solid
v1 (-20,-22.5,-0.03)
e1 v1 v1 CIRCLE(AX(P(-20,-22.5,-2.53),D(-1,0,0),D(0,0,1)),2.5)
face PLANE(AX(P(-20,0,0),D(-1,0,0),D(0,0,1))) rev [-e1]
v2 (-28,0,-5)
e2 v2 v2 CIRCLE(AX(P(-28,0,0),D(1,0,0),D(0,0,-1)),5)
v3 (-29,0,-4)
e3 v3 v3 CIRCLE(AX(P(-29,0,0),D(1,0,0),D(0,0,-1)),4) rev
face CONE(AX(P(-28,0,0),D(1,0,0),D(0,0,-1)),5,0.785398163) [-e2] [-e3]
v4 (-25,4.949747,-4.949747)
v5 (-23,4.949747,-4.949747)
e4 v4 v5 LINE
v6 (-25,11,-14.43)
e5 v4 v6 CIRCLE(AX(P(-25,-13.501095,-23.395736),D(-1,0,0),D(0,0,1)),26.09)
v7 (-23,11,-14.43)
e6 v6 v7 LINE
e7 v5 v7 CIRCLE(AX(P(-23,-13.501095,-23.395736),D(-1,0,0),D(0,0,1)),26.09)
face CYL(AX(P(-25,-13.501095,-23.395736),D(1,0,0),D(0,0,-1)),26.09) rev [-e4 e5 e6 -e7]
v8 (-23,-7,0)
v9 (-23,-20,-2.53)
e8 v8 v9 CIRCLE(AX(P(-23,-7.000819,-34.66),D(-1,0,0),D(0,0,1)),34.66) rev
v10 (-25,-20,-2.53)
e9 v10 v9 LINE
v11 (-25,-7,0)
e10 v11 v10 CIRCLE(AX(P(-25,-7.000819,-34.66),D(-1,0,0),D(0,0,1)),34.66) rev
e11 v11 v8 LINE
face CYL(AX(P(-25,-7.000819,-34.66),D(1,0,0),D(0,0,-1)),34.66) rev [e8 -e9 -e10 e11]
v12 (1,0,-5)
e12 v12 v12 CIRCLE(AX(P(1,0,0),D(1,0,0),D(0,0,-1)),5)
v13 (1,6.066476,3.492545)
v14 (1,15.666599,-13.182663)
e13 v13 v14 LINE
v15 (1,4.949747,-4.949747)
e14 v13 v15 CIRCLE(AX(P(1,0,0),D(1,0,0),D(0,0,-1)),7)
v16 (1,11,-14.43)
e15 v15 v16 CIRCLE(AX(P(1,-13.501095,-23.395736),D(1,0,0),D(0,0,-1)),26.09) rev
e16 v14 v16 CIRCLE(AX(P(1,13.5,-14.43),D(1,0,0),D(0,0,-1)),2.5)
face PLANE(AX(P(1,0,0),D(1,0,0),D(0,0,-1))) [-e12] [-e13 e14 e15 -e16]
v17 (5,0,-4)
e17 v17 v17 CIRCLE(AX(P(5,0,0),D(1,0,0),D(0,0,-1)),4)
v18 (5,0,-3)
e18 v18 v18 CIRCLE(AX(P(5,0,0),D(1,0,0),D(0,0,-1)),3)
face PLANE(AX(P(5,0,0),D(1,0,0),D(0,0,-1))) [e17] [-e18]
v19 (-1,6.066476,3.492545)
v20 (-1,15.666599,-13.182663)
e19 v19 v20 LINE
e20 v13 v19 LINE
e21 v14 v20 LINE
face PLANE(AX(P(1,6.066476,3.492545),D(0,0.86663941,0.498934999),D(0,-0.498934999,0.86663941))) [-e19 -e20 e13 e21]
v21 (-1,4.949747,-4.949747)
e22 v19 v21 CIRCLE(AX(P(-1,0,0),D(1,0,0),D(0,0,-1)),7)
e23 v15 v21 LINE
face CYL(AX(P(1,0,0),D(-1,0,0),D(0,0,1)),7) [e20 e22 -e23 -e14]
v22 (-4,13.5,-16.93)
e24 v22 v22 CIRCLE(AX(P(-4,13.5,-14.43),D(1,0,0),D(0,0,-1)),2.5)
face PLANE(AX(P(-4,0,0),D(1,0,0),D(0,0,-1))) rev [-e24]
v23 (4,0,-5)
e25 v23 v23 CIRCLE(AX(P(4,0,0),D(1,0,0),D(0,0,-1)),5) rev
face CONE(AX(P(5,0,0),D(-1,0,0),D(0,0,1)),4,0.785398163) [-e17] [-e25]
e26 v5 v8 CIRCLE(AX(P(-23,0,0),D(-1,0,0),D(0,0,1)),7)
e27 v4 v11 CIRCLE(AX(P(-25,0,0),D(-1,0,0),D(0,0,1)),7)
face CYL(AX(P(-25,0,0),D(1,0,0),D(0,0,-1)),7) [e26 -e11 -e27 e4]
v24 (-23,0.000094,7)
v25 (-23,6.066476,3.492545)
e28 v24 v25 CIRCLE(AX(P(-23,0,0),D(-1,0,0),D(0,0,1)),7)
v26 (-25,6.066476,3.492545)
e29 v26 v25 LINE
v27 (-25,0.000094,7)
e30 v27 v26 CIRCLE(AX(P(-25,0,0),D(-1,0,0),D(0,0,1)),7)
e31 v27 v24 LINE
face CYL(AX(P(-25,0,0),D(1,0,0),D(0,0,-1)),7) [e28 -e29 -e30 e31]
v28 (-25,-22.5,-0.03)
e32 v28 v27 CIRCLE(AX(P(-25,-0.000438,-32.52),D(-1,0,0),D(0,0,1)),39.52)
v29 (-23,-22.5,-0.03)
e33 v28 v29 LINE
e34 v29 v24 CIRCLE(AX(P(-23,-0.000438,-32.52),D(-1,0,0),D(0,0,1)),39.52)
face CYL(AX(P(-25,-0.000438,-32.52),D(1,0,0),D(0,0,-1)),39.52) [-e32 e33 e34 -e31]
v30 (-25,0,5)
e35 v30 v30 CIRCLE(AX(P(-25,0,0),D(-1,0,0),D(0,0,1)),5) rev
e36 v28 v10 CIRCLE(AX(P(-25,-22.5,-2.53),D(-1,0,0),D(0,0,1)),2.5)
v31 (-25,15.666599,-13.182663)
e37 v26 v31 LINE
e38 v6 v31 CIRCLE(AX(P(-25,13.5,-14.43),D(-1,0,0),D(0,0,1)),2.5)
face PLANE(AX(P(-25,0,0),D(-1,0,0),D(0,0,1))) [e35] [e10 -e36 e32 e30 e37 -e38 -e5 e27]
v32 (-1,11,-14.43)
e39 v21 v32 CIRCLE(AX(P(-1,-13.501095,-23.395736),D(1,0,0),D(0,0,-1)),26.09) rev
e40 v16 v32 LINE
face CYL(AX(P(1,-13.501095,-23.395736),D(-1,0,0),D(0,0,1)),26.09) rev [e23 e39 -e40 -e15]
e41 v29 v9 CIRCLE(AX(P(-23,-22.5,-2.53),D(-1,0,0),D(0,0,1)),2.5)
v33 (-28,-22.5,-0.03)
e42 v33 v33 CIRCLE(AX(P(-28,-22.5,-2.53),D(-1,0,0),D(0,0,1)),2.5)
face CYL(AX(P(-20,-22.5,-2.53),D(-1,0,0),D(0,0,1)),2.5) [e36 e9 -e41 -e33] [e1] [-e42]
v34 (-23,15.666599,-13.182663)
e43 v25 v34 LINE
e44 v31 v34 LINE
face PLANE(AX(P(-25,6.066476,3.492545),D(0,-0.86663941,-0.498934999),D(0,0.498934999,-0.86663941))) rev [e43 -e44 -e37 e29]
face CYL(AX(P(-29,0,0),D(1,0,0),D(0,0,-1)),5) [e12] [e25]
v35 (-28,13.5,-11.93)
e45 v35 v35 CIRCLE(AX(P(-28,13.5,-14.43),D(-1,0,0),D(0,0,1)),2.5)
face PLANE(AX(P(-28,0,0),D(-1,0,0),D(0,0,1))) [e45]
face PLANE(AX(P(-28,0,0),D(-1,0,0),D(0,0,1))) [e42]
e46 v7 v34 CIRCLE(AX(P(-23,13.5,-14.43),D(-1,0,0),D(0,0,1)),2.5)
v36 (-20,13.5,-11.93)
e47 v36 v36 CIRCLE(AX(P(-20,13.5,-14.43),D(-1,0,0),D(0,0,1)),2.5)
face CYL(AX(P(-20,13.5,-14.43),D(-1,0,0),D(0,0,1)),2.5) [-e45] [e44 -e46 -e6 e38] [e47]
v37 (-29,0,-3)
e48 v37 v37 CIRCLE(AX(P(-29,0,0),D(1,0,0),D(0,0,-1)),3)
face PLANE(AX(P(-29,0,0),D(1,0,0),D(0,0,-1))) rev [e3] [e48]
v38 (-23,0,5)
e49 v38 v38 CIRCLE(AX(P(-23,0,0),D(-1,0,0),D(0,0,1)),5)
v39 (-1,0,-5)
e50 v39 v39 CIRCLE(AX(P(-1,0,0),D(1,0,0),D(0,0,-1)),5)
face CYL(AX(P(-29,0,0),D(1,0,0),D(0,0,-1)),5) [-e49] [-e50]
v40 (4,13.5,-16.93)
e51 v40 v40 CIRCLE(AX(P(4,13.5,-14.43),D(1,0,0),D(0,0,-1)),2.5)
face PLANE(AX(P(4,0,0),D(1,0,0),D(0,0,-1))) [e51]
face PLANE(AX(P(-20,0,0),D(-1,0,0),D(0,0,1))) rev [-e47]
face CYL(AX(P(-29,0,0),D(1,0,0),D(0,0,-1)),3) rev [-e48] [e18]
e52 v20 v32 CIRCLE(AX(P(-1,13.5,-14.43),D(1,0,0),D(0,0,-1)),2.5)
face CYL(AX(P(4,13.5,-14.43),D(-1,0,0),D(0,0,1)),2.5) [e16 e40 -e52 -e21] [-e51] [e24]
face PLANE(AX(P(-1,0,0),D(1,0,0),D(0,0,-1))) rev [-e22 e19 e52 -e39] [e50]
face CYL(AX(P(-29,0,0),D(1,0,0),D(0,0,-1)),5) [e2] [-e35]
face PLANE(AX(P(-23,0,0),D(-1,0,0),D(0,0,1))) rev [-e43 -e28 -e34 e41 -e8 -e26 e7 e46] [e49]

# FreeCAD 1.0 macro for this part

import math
import FreeCAD as App
import Part
import Sketcher
Q = App.Units.Quantity


def edges_at(feature, points):
    """Names of the edges that pass closest to the given points."""
    edges = feature.Shape.Edges
    near = lambda p: min(range(len(edges)), key=lambda i: edges[i].distToShape(Part.Vertex(*p))[0])
    return sorted({f"Edge{near(p) + 1}" for p in points})

doc = App.newDocument("Part")
body = doc.addObject("PartDesign::Body", "Body")

sketch1 = doc.addObject("Sketcher::SketchObject", "Sketch")
body.addObject(sketch1)
sketch1.AttachmentSupport = (doc.YZ_Plane, [""])
sketch1.MapMode = "FlatFace"
sketch1.addGeometry(Part.Circle(App.Vector(13.5, -14.43, 0), App.Vector(0, 0, 1), 2.5), False)
sketch1.addConstraint(Sketcher.Constraint("Diameter", 0, Q("5 mm")))
sketch1.addConstraint(Sketcher.Constraint("DistanceX", -1, 1, 0, 3, Q("13.5 mm")))
sketch1.addConstraint(Sketcher.Constraint("DistanceY", 0, 3, -1, 1, Q("14.43 mm")))
pad1 = doc.addObject("PartDesign::Pad", "Pad")
body.addObject(pad1)
pad1.Profile = sketch1
pad1.Length = 8
pad1.Midplane = True

sketch2 = doc.addObject("Sketcher::SketchObject", "Sketch001")
body.addObject(sketch2)
sketch2.AttachmentSupport = (doc.YZ_Plane, [""])
sketch2.MapMode = "FlatFace"
sketch2.addGeometry(Part.LineSegment(App.Vector(15.666599, -13.182663, 0), App.Vector(6.066476, 3.492545, 0)), False)
sketch2.addGeometry(Part.ArcOfCircle(Part.Circle(App.Vector(0, 0, 0), App.Vector(0, 0, 1), 7), math.radians(29.929565), math.radians(315)), False)
sketch2.addGeometry(Part.ArcOfCircle(Part.Circle(App.Vector(-13.501095, -23.395736, 0), App.Vector(0, 0, 1), 26.09), math.radians(20.099193), math.radians(44.992462)), False)
sketch2.addGeometry(Part.ArcOfCircle(Part.Circle(App.Vector(13.5, -14.43, 0), App.Vector(0, 0, 1), 2.5), math.radians(29.929565), math.radians(180)), False)
sketch2.addGeometry(Part.Circle(App.Vector(0, 0, 0), App.Vector(0, 0, 1), 5), False)
sketch2.addConstraint(Sketcher.Constraint("Tangent", 0, 2, 1, 1))
sketch2.addConstraint(Sketcher.Constraint("Coincident", 1, 2, 2, 2))
sketch2.addConstraint(Sketcher.Constraint("Coincident", 2, 1, 3, 2))
sketch2.addConstraint(Sketcher.Constraint("Tangent", 3, 1, 0, 1))
sketch2.addConstraint(Sketcher.Constraint("Coincident", 1, 3, -1, 1))
sketch2.addConstraint(Sketcher.Constraint("Coincident", 4, 3, -1, 1))
sketch2.addConstraint(Sketcher.Constraint("Horizontal", 3, 3, 2, 1))
sketch2.addConstraint(Sketcher.Constraint("Diameter", 4, Q("10 mm")))
sketch2.addConstraint(Sketcher.Constraint("Radius", 1, Q("7 mm")))
sketch2.addConstraint(Sketcher.Constraint("Radius", 3, Q("2.5 mm")))
sketch2.addConstraint(Sketcher.Constraint("Radius", 2, Q("26.09 mm")))
sketch2.addConstraint(Sketcher.Constraint("DistanceX", -1, 1, 2, 1, Q("11 mm")))
sketch2.addConstraint(Sketcher.Constraint("DistanceY", 3, 3, -1, 1, Q("14.43 mm")))
sketch2.addConstraint(Sketcher.Constraint("DistanceX", 2, 3, 0, 2, Q("19.567571 mm")))
pad2 = doc.addObject("PartDesign::Pad", "Pad001")
body.addObject(pad2)
pad2.Profile = sketch2
pad2.Length = 2
pad2.Midplane = True

sketch3 = doc.addObject("Sketcher::SketchObject", "Sketch002")
body.addObject(sketch3)
sketch3.AttachmentSupport = (doc.YZ_Plane, [""])
sketch3.MapMode = "FlatFace"
sketch3.AttachmentOffset = App.Placement(App.Vector(0, 0, -1), App.Rotation())
sketch3.addGeometry(Part.Circle(App.Vector(0, 0, 0), App.Vector(0, 0, 1), 5), False)
sketch3.addGeometry(Part.Circle(App.Vector(0, 0, 0), App.Vector(0, 0, 1), 3), False)
sketch3.addConstraint(Sketcher.Constraint("Coincident", 0, 3, -1, 1))
sketch3.addConstraint(Sketcher.Constraint("Coincident", 1, 3, -1, 1))
sketch3.addConstraint(Sketcher.Constraint("Diameter", 0, Q("10 mm")))
sketch3.addConstraint(Sketcher.Constraint("Diameter", 1, Q("6 mm")))
pad3 = doc.addObject("PartDesign::Pad", "Pad002")
body.addObject(pad3)
pad3.Profile = sketch3
pad3.Type = "TwoLengths"
pad3.Length = 6
pad3.Length2 = 28

sketch4 = doc.addObject("Sketcher::SketchObject", "Sketch003")
body.addObject(sketch4)
sketch4.AttachmentSupport = (doc.YZ_Plane, [""])
sketch4.MapMode = "FlatFace"
sketch4.AttachmentOffset = App.Placement(App.Vector(0, 0, -23), App.Rotation())
sketch4.addGeometry(Part.ArcOfCircle(Part.Circle(App.Vector(0, 0, 0), App.Vector(0, 0, 1), 7), math.radians(29.929565), math.radians(89.999229)), False)
sketch4.addGeometry(Part.LineSegment(App.Vector(6.066476, 3.492545, 0), App.Vector(15.666599, -13.182663, 0)), False)
sketch4.addGeometry(Part.ArcOfCircle(Part.Circle(App.Vector(13.5, -14.43, 0), App.Vector(0, 0, 1), 2.5), math.radians(29.929565), math.radians(180)), False)
sketch4.addGeometry(Part.ArcOfCircle(Part.Circle(App.Vector(-13.501095, -23.395736, 0), App.Vector(0, 0, 1), 26.09), math.radians(20.099193), math.radians(44.992462)), False)
sketch4.addGeometry(Part.ArcOfCircle(Part.Circle(App.Vector(0, 0, 0), App.Vector(0, 0, 1), 7), math.radians(180), math.radians(315)), False)
sketch4.addGeometry(Part.ArcOfCircle(Part.Circle(App.Vector(-7.000819, -34.66, 0), App.Vector(0, 0, 1), 34.66), math.radians(89.998646), math.radians(112.02731)), False)
sketch4.addGeometry(Part.ArcOfCircle(Part.Circle(App.Vector(-22.5, -2.53, 0), App.Vector(0, 0, 1), 2.5), math.radians(0), math.radians(90)), False)
sketch4.addGeometry(Part.ArcOfCircle(Part.Circle(App.Vector(-0.000438, -32.52, 0), App.Vector(0, 0, 1), 39.52), math.radians(89.999229), math.radians(124.702884)), False)
sketch4.addGeometry(Part.Circle(App.Vector(0, 0, 0), App.Vector(0, 0, 1), 5), False)
sketch4.addConstraint(Sketcher.Constraint("Tangent", 0, 1, 1, 1))
sketch4.addConstraint(Sketcher.Constraint("Tangent", 1, 2, 2, 1))
sketch4.addConstraint(Sketcher.Constraint("Coincident", 2, 2, 3, 1))
sketch4.addConstraint(Sketcher.Constraint("Coincident", 3, 2, 4, 2))
sketch4.addConstraint(Sketcher.Constraint("Coincident", 4, 1, 5, 1))
sketch4.addConstraint(Sketcher.Constraint("Coincident", 5, 2, 6, 1))
sketch4.addConstraint(Sketcher.Constraint("Coincident", 6, 2, 7, 2))
sketch4.addConstraint(Sketcher.Constraint("Tangent", 7, 1, 0, 2))
sketch4.addConstraint(Sketcher.Constraint("Coincident", 0, 3, -1, 1))
sketch4.addConstraint(Sketcher.Constraint("Coincident", 4, 3, -1, 1))
sketch4.addConstraint(Sketcher.Constraint("Coincident", 8, 3, -1, 1))
sketch4.addConstraint(Sketcher.Constraint("Equal", 0, 4))
sketch4.addConstraint(Sketcher.Constraint("Equal", 2, 6))
sketch4.addConstraint(Sketcher.Constraint("PointOnObject", 4, 1, -1))
sketch4.addConstraint(Sketcher.Constraint("Horizontal", 6, 3, 5, 2))
sketch4.addConstraint(Sketcher.Constraint("Diameter", 8, Q("10 mm")))
sketch4.addConstraint(Sketcher.Constraint("Radius", 0, Q("7 mm")))
sketch4.addConstraint(Sketcher.Constraint("Radius", 2, Q("2.5 mm")))
sketch4.addConstraint(Sketcher.Constraint("Radius", 3, Q("26.09 mm")))
sketch4.addConstraint(Sketcher.Constraint("Radius", 5, Q("34.66 mm")))
sketch4.addConstraint(Sketcher.Constraint("Radius", 7, Q("39.52 mm")))
sketch4.addConstraint(Sketcher.Constraint("DistanceX", -1, 1, 2, 2, Q("11 mm")))
sketch4.addConstraint(Sketcher.Constraint("DistanceX", 5, 2, -1, 1, Q("20 mm")))
sketch4.addConstraint(Sketcher.Constraint("DistanceX", 6, 2, -1, 1, Q("22.5 mm")))
sketch4.addConstraint(Sketcher.Constraint("DistanceY", 2, 3, 6, 3, Q("11.9 mm")))
sketch4.addConstraint(Sketcher.Constraint("DistanceY", 2, 3, -1, 1, Q("14.43 mm")))
sketch4.addConstraint(Sketcher.Constraint("DistanceY", 2, 2, -1, 1, Q("14.43 mm")))
sketch4.addConstraint(Sketcher.Constraint("DistanceX", 3, 2, 0, 1, Q("1.116728 mm")))
pad4 = doc.addObject("PartDesign::Pad", "Pad003")
body.addObject(pad4)
pad4.Profile = sketch4
pad4.Length = 2
pad4.Reversed = True

sketch5 = doc.addObject("Sketcher::SketchObject", "Sketch004")
body.addObject(sketch5)
sketch5.AttachmentSupport = (doc.YZ_Plane, [""])
sketch5.MapMode = "FlatFace"
sketch5.AttachmentOffset = App.Placement(App.Vector(0, 0, -23), App.Rotation())
sketch5.addGeometry(Part.Circle(App.Vector(-22.5, -2.53, 0), App.Vector(0, 0, 1), 2.5), False)
sketch5.addGeometry(Part.Circle(App.Vector(13.5, -14.43, 0), App.Vector(0, 0, 1), 2.5), False)
sketch5.addConstraint(Sketcher.Constraint("Equal", 0, 1))
sketch5.addConstraint(Sketcher.Constraint("Diameter", 0, Q("5 mm")))
sketch5.addConstraint(Sketcher.Constraint("DistanceX", 0, 3, 1, 3, Q("36 mm")))
sketch5.addConstraint(Sketcher.Constraint("DistanceX", 0, 3, -1, 1, Q("22.5 mm")))
sketch5.addConstraint(Sketcher.Constraint("DistanceY", 1, 3, 0, 3, Q("11.9 mm")))
sketch5.addConstraint(Sketcher.Constraint("DistanceY", 0, 3, -1, 1, Q("2.53 mm")))
pad5 = doc.addObject("PartDesign::Pad", "Pad004")
body.addObject(pad5)
pad5.Profile = sketch5
pad5.Type = "TwoLengths"
pad5.Length = 5
pad5.Length2 = 3
pad5.Reversed = True
doc.recompute()

chamfer = doc.addObject("PartDesign::Chamfer", "Chamfer")
body.addObject(chamfer)
chamfer.Base = (pad5, edges_at(pad5, [(-29, 0, 5), (5, 0, 5)]))
chamfer.Size = 1

doc.recompute()
